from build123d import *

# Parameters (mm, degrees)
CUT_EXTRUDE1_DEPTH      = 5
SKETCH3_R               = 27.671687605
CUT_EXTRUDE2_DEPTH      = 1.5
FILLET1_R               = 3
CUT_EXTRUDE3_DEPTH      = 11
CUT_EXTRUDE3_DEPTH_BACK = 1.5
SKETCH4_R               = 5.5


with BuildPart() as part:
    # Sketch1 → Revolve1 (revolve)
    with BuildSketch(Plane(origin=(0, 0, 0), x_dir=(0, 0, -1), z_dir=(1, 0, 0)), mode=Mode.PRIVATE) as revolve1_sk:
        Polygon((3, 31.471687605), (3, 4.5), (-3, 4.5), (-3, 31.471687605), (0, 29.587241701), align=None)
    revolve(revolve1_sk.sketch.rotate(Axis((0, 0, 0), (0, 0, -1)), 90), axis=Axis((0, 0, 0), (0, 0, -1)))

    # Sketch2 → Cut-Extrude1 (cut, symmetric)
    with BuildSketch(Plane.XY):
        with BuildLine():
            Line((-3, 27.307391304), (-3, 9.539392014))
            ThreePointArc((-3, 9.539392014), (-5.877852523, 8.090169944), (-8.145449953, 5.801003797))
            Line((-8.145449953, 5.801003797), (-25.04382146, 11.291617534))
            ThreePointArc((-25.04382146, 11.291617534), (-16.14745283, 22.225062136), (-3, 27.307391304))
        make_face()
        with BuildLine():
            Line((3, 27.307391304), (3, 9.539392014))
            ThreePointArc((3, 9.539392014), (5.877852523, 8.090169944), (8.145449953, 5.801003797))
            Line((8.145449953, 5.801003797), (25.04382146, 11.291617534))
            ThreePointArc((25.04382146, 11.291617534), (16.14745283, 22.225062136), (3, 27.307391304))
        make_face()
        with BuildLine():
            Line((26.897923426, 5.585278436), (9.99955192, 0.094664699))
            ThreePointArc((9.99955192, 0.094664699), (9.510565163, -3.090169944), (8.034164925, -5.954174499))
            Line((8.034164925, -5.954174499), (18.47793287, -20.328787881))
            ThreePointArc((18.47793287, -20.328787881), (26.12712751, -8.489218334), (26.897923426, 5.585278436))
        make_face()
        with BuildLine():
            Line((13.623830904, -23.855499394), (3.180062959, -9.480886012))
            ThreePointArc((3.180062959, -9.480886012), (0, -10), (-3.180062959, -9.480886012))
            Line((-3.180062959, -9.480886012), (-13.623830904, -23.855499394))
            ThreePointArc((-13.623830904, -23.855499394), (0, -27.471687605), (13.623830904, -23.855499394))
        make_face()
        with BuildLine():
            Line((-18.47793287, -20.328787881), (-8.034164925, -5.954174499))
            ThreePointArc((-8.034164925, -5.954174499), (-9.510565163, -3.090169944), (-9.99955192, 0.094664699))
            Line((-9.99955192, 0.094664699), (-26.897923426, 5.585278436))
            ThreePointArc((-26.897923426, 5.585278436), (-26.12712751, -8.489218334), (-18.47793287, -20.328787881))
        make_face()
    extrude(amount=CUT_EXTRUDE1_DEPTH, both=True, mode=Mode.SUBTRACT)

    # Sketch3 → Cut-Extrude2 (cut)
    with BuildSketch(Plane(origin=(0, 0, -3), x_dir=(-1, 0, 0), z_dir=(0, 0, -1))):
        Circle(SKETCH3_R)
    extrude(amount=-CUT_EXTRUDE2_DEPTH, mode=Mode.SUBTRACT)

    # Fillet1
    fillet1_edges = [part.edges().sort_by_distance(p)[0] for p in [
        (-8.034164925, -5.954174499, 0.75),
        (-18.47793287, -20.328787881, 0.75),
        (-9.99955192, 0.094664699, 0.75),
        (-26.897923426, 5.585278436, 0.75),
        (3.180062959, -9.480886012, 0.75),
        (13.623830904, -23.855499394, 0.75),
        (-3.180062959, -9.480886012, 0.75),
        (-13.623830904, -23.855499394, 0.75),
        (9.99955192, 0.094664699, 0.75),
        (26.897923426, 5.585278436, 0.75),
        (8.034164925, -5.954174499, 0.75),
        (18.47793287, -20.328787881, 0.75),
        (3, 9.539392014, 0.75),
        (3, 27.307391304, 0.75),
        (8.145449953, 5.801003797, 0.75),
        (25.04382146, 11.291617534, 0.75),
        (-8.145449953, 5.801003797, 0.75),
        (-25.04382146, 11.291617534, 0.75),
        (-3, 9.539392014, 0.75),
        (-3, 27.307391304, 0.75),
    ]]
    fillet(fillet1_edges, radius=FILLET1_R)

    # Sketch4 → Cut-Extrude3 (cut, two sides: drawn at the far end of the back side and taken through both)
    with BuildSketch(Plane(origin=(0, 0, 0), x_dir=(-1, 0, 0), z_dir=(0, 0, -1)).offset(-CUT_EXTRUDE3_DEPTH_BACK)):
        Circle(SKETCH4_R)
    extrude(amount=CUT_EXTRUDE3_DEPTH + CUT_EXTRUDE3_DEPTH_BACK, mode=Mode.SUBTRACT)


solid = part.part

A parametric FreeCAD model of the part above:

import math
import FreeCAD as App
import Part
import Sketcher

V = App.Vector
Q = App.Units.Quantity


def edges_at(feature, points):
    """Names of the edges that pass closest to the given points."""
    edges = feature.Shape.Edges
    near = lambda p: min(range(len(edges)), key=lambda i: edges[i].distToShape(Part.Vertex(*p))[0])
    return sorted({f"Edge{near(p) + 1}" for p in points})


def add_polygon(sketch, points):
    """Adds a closed chain of lines whose ends are joined by coincident constraints."""
    first, n = sketch.GeometryCount, len(points)
    for a, b in zip(points, points[1:] + points[:1]):
        sketch.addGeometry(Part.LineSegment(App.Vector(*a, 0), App.Vector(*b, 0)), False)
    for i in range(n):
        sketch.addConstraint(Sketcher.Constraint("Coincident", first + i, 2, first + (i + 1) % n, 1))

doc = App.newDocument("Part")
body = doc.addObject("PartDesign::Body", "Body")

# Sketch on YZ plane
sketch1 = doc.addObject("Sketcher::SketchObject", "Sketch")
body.addObject(sketch1)
sketch1.AttachmentSupport = (doc.YZ_Plane, [""])
sketch1.MapMode = "FlatFace"
add_polygon(sketch1, [(4.5, -3), (31.5, -3), (29.6, 0), (31.5, 3), (4.5, 3)])  # lines 0-4
sketch1.addConstraint([
    Sketcher.Constraint("Horizontal", 0),
    Sketcher.Constraint("Horizontal", 3),
    Sketcher.Constraint("Vertical", 4),
    Sketcher.Constraint("Symmetric", 0, 2, 2, 2, -1),
    Sketcher.Constraint("PointOnObject", 1, 2, -1),
    Sketcher.Constraint("DistanceY", 4, 2, 4, 1, Q("6 mm")),
    Sketcher.Constraint("DistanceX", -1, 1, 3, 2, Q("4.5 mm")),
    Sketcher.Constraint("Distance", 1, Q("3.542758 mm")),
    Sketcher.Constraint("DistanceX", 0, 1, 0, 2, Q("26.971688 mm")),
])
revolution = doc.addObject("PartDesign::Revolution", "Revolution")
body.addObject(revolution)
revolution.Profile = sketch1
revolution.ReferenceAxis = (sketch1, ["V_Axis"])
revolution.Angle = 360

# Sketch on XY plane
sketch2 = doc.addObject("Sketcher::SketchObject", "Sketch001")
body.addObject(sketch2)
sketch2.AttachmentSupport = (doc.XY_Plane, [""])
sketch2.MapMode = "FlatFace"
sketch2.addGeometry([
    Part.LineSegment(V(-3, 10, 0), V(-3, 27, 0)),  # 0
    Part.ArcOfCircle(Part.Circle(V(0, 0, 0), V(0, 0, 1), 27), math.radians(96), math.radians(156)),  # 1
    Part.LineSegment(V(-25, 11, 0), V(-8, 6, 0)),  # 2
    Part.ArcOfCircle(Part.Circle(V(0, 0, 0), V(0, 0, 1), 10), math.radians(107), math.radians(145)),  # 3
    Part.LineSegment(V(3, 27, 0), V(3, 10, 0)),  # 4
    Part.ArcOfCircle(Part.Circle(V(0, 0, 0), V(0, 0, 1), 10), math.radians(35), math.radians(73)),  # 5
    Part.LineSegment(V(8, 6, 0), V(25, 11, 0)),  # 6
    Part.ArcOfCircle(Part.Circle(V(0, 0, 0), V(0, 0, 1), 27), math.radians(24), math.radians(84)),  # 7
    Part.LineSegment(V(27, 6, 0), V(10, 0, 0)),  # 8
    Part.ArcOfCircle(Part.Circle(V(0, 0, 0), V(0, 0, 1), 10), math.radians(-37), math.radians(1)),  # 9
    Part.LineSegment(V(8, -6, 0), V(18, -20, 0)),  # 10
    Part.ArcOfCircle(Part.Circle(V(0, 0, 0), V(0, 0, 1), 27), math.radians(-48), math.radians(12)),  # 11
    Part.LineSegment(V(14, -24, 0), V(3, -9, 0)),  # 12
    Part.ArcOfCircle(Part.Circle(V(0, 0, 0), V(0, 0, 1), 10), math.radians(-109), math.radians(-71)),  # 13
    Part.LineSegment(V(-3, -9, 0), V(-14, -24, 0)),  # 14
    Part.ArcOfCircle(Part.Circle(V(0, 0, 0), V(0, 0, 1), 27), math.radians(-120), math.radians(-60)),  # 15
    Part.LineSegment(V(-18, -20, 0), V(-8, -6, 0)),  # 16
    Part.ArcOfCircle(Part.Circle(V(0, 0, 0), V(0, 0, 1), 10), math.radians(179), math.radians(217)),  # 17
    Part.LineSegment(V(-10, 0, 0), V(-27, 6, 0)),  # 18
    Part.ArcOfCircle(Part.Circle(V(0, 0, 0), V(0, 0, 1), 27), math.radians(168), math.radians(228)),  # 19
], False)
sketch2.addConstraint([
    Sketcher.Constraint("Coincident", 0, 2, 1, 1),
    Sketcher.Constraint("Coincident", 1, 2, 2, 1),
    Sketcher.Constraint("Coincident", 2, 2, 3, 2),
    Sketcher.Constraint("Coincident", 3, 1, 0, 1),
    Sketcher.Constraint("Coincident", 4, 2, 5, 2),
    Sketcher.Constraint("Coincident", 5, 1, 6, 1),
    Sketcher.Constraint("Coincident", 6, 2, 7, 1),
    Sketcher.Constraint("Coincident", 7, 2, 4, 1),
    Sketcher.Constraint("Coincident", 8, 2, 9, 2),
    Sketcher.Constraint("Coincident", 9, 1, 10, 1),
    Sketcher.Constraint("Coincident", 10, 2, 11, 1),
    Sketcher.Constraint("Coincident", 11, 2, 8, 1),
    Sketcher.Constraint("Coincident", 12, 2, 13, 2),
    Sketcher.Constraint("Coincident", 13, 1, 14, 1),
    Sketcher.Constraint("Coincident", 14, 2, 15, 1),
    Sketcher.Constraint("Coincident", 15, 2, 12, 1),
    Sketcher.Constraint("Coincident", 16, 2, 17, 2),
    Sketcher.Constraint("Coincident", 17, 1, 18, 1),
    Sketcher.Constraint("Coincident", 18, 2, 19, 1),
    Sketcher.Constraint("Coincident", 19, 2, 16, 1),
    Sketcher.Constraint("Vertical", 0),
    Sketcher.Constraint("Vertical", 4),
    Sketcher.Constraint("Coincident", 1, 3, -1, 1),
    Sketcher.Constraint("Coincident", 3, 3, -1, 1),
    Sketcher.Constraint("Coincident", 5, 3, -1, 1),
    Sketcher.Constraint("Coincident", 7, 3, -1, 1),
    Sketcher.Constraint("Coincident", 9, 3, -1, 1),
    Sketcher.Constraint("Coincident", 11, 3, -1, 1),
    Sketcher.Constraint("Coincident", 13, 3, -1, 1),
    Sketcher.Constraint("Coincident", 15, 3, -1, 1),
    Sketcher.Constraint("Coincident", 17, 3, -1, 1),
    Sketcher.Constraint("Coincident", 19, 3, -1, 1),
    Sketcher.Constraint("Equal", 3, 5),
    Sketcher.Constraint("Equal", 1, 7),
    Sketcher.Constraint("Equal", 5, 9),
    Sketcher.Constraint("Equal", 7, 11),
    Sketcher.Constraint("Equal", 9, 13),
    Sketcher.Constraint("Equal", 11, 15),
    Sketcher.Constraint("Equal", 13, 17),
    Sketcher.Constraint("Equal", 15, 19),
    Sketcher.Constraint("Parallel", 6, 8),
    Sketcher.Constraint("Parallel", 10, 12),
    Sketcher.Constraint("Parallel", 14, 16),
    Sketcher.Constraint("Parallel", 2, 18),
    Sketcher.Constraint("Horizontal", 3, 1, 4, 2),
    Sketcher.Constraint("Horizontal", 2, 2, 5, 1),
    Sketcher.Constraint("Horizontal", 1, 2, 6, 2),
    Sketcher.Constraint("Horizontal", 12, 2, 13, 1),
    Sketcher.Constraint("Horizontal", 14, 2, 15, 2),
    Sketcher.Constraint("Horizontal", 9, 1, 16, 2),
    Sketcher.Constraint("Horizontal", 8, 2, 17, 1),
    Sketcher.Constraint("Equal", 6, 8),
    Sketcher.Constraint("Equal", 8, 10),
    Sketcher.Constraint("Equal", 10, 12),
    Sketcher.Constraint("Radius", 3, Q("10 mm")),
    Sketcher.Constraint("Angle", 2, Q("-18 deg")),
    Sketcher.Constraint("Angle", 10, Q("-54 deg")),
    Sketcher.Constraint("DistanceX", 0, 2, -1, 1, Q("3 mm")),
    Sketcher.Constraint("DistanceY", 0, 1, 0, 2, Q("17.767999 mm")),
    Sketcher.Constraint("Distance", 2, Q("17.767999 mm")),
])
pocket1 = doc.addObject("PartDesign::Pocket", "Pocket")
body.addObject(pocket1)
pocket1.Profile = sketch2
pocket1.Length = 10
pocket1.Midplane = True

# Sketch on XY plane
sketch3 = doc.addObject("Sketcher::SketchObject", "Sketch002")
body.addObject(sketch3)
sketch3.AttachmentSupport = (doc.XY_Plane, [""])
sketch3.MapMode = "FlatFace"
sketch3.AttachmentOffset = App.Placement(V(0, 0, -3), App.Rotation())
sketch3.addGeometry(Part.Circle(V(0, 0, 0), V(0, 0, 1), 28), False)
sketch3.addConstraint([
    Sketcher.Constraint("Coincident", 0, 3, -1, 1),
    Sketcher.Constraint("Diameter", 0, Q("55.343375 mm")),
])
pocket2 = doc.addObject("PartDesign::Pocket", "Pocket001")
body.addObject(pocket2)
pocket2.Profile = sketch3
pocket2.Length = 1.5
pocket2.Reversed = True
doc.recompute()

fillet = doc.addObject("PartDesign::Fillet", "Fillet")
body.addObject(fillet)
fillet.Base = (pocket2, edges_at(pocket2, [
    (-8.034, -5.954, 0.75),
    (-18.478, -20.329, 0.75),
    (-10, 0.095, 0.75),
    (-26.898, 5.585, 0.75),
    (3.18, -9.481, 0.75),
    (13.624, -23.855, 0.75),
    (-3.18, -9.481, 0.75),
    (-13.624, -23.855, 0.75),
    (10, 0.095, 0.75),
    (26.898, 5.585, 0.75),
    (8.034, -5.954, 0.75),
    (18.478, -20.329, 0.75),
    (3, 9.539, 0.75),
    (3, 27.307, 0.75),
    (8.145, 5.801, 0.75),
    (25.044, 11.292, 0.75),
    (-8.145, 5.801, 0.75),
    (-25.044, 11.292, 0.75),
    (-3, 9.539, 0.75),
    (-3, 27.307, 0.75),
]))
fillet.Radius = 3

# Sketch on XY plane
sketch4 = doc.addObject("Sketcher::SketchObject", "Sketch003")
body.addObject(sketch4)
sketch4.AttachmentSupport = (doc.XY_Plane, [""])
sketch4.MapMode = "FlatFace"
sketch4.addGeometry(Part.Circle(V(0, 0, 0), V(0, 0, 1), 6), False)
sketch4.addConstraint([
    Sketcher.Constraint("Coincident", 0, 3, -1, 1),
    Sketcher.Constraint("Diameter", 0, Q("11 mm")),
])
pocket3 = doc.addObject("PartDesign::Pocket", "Pocket002")
body.addObject(pocket3)
pocket3.Profile = sketch4
pocket3.Type = "TwoLengths"
pocket3.Length = 11
pocket3.Length2 = 1.5

doc.recompute()
